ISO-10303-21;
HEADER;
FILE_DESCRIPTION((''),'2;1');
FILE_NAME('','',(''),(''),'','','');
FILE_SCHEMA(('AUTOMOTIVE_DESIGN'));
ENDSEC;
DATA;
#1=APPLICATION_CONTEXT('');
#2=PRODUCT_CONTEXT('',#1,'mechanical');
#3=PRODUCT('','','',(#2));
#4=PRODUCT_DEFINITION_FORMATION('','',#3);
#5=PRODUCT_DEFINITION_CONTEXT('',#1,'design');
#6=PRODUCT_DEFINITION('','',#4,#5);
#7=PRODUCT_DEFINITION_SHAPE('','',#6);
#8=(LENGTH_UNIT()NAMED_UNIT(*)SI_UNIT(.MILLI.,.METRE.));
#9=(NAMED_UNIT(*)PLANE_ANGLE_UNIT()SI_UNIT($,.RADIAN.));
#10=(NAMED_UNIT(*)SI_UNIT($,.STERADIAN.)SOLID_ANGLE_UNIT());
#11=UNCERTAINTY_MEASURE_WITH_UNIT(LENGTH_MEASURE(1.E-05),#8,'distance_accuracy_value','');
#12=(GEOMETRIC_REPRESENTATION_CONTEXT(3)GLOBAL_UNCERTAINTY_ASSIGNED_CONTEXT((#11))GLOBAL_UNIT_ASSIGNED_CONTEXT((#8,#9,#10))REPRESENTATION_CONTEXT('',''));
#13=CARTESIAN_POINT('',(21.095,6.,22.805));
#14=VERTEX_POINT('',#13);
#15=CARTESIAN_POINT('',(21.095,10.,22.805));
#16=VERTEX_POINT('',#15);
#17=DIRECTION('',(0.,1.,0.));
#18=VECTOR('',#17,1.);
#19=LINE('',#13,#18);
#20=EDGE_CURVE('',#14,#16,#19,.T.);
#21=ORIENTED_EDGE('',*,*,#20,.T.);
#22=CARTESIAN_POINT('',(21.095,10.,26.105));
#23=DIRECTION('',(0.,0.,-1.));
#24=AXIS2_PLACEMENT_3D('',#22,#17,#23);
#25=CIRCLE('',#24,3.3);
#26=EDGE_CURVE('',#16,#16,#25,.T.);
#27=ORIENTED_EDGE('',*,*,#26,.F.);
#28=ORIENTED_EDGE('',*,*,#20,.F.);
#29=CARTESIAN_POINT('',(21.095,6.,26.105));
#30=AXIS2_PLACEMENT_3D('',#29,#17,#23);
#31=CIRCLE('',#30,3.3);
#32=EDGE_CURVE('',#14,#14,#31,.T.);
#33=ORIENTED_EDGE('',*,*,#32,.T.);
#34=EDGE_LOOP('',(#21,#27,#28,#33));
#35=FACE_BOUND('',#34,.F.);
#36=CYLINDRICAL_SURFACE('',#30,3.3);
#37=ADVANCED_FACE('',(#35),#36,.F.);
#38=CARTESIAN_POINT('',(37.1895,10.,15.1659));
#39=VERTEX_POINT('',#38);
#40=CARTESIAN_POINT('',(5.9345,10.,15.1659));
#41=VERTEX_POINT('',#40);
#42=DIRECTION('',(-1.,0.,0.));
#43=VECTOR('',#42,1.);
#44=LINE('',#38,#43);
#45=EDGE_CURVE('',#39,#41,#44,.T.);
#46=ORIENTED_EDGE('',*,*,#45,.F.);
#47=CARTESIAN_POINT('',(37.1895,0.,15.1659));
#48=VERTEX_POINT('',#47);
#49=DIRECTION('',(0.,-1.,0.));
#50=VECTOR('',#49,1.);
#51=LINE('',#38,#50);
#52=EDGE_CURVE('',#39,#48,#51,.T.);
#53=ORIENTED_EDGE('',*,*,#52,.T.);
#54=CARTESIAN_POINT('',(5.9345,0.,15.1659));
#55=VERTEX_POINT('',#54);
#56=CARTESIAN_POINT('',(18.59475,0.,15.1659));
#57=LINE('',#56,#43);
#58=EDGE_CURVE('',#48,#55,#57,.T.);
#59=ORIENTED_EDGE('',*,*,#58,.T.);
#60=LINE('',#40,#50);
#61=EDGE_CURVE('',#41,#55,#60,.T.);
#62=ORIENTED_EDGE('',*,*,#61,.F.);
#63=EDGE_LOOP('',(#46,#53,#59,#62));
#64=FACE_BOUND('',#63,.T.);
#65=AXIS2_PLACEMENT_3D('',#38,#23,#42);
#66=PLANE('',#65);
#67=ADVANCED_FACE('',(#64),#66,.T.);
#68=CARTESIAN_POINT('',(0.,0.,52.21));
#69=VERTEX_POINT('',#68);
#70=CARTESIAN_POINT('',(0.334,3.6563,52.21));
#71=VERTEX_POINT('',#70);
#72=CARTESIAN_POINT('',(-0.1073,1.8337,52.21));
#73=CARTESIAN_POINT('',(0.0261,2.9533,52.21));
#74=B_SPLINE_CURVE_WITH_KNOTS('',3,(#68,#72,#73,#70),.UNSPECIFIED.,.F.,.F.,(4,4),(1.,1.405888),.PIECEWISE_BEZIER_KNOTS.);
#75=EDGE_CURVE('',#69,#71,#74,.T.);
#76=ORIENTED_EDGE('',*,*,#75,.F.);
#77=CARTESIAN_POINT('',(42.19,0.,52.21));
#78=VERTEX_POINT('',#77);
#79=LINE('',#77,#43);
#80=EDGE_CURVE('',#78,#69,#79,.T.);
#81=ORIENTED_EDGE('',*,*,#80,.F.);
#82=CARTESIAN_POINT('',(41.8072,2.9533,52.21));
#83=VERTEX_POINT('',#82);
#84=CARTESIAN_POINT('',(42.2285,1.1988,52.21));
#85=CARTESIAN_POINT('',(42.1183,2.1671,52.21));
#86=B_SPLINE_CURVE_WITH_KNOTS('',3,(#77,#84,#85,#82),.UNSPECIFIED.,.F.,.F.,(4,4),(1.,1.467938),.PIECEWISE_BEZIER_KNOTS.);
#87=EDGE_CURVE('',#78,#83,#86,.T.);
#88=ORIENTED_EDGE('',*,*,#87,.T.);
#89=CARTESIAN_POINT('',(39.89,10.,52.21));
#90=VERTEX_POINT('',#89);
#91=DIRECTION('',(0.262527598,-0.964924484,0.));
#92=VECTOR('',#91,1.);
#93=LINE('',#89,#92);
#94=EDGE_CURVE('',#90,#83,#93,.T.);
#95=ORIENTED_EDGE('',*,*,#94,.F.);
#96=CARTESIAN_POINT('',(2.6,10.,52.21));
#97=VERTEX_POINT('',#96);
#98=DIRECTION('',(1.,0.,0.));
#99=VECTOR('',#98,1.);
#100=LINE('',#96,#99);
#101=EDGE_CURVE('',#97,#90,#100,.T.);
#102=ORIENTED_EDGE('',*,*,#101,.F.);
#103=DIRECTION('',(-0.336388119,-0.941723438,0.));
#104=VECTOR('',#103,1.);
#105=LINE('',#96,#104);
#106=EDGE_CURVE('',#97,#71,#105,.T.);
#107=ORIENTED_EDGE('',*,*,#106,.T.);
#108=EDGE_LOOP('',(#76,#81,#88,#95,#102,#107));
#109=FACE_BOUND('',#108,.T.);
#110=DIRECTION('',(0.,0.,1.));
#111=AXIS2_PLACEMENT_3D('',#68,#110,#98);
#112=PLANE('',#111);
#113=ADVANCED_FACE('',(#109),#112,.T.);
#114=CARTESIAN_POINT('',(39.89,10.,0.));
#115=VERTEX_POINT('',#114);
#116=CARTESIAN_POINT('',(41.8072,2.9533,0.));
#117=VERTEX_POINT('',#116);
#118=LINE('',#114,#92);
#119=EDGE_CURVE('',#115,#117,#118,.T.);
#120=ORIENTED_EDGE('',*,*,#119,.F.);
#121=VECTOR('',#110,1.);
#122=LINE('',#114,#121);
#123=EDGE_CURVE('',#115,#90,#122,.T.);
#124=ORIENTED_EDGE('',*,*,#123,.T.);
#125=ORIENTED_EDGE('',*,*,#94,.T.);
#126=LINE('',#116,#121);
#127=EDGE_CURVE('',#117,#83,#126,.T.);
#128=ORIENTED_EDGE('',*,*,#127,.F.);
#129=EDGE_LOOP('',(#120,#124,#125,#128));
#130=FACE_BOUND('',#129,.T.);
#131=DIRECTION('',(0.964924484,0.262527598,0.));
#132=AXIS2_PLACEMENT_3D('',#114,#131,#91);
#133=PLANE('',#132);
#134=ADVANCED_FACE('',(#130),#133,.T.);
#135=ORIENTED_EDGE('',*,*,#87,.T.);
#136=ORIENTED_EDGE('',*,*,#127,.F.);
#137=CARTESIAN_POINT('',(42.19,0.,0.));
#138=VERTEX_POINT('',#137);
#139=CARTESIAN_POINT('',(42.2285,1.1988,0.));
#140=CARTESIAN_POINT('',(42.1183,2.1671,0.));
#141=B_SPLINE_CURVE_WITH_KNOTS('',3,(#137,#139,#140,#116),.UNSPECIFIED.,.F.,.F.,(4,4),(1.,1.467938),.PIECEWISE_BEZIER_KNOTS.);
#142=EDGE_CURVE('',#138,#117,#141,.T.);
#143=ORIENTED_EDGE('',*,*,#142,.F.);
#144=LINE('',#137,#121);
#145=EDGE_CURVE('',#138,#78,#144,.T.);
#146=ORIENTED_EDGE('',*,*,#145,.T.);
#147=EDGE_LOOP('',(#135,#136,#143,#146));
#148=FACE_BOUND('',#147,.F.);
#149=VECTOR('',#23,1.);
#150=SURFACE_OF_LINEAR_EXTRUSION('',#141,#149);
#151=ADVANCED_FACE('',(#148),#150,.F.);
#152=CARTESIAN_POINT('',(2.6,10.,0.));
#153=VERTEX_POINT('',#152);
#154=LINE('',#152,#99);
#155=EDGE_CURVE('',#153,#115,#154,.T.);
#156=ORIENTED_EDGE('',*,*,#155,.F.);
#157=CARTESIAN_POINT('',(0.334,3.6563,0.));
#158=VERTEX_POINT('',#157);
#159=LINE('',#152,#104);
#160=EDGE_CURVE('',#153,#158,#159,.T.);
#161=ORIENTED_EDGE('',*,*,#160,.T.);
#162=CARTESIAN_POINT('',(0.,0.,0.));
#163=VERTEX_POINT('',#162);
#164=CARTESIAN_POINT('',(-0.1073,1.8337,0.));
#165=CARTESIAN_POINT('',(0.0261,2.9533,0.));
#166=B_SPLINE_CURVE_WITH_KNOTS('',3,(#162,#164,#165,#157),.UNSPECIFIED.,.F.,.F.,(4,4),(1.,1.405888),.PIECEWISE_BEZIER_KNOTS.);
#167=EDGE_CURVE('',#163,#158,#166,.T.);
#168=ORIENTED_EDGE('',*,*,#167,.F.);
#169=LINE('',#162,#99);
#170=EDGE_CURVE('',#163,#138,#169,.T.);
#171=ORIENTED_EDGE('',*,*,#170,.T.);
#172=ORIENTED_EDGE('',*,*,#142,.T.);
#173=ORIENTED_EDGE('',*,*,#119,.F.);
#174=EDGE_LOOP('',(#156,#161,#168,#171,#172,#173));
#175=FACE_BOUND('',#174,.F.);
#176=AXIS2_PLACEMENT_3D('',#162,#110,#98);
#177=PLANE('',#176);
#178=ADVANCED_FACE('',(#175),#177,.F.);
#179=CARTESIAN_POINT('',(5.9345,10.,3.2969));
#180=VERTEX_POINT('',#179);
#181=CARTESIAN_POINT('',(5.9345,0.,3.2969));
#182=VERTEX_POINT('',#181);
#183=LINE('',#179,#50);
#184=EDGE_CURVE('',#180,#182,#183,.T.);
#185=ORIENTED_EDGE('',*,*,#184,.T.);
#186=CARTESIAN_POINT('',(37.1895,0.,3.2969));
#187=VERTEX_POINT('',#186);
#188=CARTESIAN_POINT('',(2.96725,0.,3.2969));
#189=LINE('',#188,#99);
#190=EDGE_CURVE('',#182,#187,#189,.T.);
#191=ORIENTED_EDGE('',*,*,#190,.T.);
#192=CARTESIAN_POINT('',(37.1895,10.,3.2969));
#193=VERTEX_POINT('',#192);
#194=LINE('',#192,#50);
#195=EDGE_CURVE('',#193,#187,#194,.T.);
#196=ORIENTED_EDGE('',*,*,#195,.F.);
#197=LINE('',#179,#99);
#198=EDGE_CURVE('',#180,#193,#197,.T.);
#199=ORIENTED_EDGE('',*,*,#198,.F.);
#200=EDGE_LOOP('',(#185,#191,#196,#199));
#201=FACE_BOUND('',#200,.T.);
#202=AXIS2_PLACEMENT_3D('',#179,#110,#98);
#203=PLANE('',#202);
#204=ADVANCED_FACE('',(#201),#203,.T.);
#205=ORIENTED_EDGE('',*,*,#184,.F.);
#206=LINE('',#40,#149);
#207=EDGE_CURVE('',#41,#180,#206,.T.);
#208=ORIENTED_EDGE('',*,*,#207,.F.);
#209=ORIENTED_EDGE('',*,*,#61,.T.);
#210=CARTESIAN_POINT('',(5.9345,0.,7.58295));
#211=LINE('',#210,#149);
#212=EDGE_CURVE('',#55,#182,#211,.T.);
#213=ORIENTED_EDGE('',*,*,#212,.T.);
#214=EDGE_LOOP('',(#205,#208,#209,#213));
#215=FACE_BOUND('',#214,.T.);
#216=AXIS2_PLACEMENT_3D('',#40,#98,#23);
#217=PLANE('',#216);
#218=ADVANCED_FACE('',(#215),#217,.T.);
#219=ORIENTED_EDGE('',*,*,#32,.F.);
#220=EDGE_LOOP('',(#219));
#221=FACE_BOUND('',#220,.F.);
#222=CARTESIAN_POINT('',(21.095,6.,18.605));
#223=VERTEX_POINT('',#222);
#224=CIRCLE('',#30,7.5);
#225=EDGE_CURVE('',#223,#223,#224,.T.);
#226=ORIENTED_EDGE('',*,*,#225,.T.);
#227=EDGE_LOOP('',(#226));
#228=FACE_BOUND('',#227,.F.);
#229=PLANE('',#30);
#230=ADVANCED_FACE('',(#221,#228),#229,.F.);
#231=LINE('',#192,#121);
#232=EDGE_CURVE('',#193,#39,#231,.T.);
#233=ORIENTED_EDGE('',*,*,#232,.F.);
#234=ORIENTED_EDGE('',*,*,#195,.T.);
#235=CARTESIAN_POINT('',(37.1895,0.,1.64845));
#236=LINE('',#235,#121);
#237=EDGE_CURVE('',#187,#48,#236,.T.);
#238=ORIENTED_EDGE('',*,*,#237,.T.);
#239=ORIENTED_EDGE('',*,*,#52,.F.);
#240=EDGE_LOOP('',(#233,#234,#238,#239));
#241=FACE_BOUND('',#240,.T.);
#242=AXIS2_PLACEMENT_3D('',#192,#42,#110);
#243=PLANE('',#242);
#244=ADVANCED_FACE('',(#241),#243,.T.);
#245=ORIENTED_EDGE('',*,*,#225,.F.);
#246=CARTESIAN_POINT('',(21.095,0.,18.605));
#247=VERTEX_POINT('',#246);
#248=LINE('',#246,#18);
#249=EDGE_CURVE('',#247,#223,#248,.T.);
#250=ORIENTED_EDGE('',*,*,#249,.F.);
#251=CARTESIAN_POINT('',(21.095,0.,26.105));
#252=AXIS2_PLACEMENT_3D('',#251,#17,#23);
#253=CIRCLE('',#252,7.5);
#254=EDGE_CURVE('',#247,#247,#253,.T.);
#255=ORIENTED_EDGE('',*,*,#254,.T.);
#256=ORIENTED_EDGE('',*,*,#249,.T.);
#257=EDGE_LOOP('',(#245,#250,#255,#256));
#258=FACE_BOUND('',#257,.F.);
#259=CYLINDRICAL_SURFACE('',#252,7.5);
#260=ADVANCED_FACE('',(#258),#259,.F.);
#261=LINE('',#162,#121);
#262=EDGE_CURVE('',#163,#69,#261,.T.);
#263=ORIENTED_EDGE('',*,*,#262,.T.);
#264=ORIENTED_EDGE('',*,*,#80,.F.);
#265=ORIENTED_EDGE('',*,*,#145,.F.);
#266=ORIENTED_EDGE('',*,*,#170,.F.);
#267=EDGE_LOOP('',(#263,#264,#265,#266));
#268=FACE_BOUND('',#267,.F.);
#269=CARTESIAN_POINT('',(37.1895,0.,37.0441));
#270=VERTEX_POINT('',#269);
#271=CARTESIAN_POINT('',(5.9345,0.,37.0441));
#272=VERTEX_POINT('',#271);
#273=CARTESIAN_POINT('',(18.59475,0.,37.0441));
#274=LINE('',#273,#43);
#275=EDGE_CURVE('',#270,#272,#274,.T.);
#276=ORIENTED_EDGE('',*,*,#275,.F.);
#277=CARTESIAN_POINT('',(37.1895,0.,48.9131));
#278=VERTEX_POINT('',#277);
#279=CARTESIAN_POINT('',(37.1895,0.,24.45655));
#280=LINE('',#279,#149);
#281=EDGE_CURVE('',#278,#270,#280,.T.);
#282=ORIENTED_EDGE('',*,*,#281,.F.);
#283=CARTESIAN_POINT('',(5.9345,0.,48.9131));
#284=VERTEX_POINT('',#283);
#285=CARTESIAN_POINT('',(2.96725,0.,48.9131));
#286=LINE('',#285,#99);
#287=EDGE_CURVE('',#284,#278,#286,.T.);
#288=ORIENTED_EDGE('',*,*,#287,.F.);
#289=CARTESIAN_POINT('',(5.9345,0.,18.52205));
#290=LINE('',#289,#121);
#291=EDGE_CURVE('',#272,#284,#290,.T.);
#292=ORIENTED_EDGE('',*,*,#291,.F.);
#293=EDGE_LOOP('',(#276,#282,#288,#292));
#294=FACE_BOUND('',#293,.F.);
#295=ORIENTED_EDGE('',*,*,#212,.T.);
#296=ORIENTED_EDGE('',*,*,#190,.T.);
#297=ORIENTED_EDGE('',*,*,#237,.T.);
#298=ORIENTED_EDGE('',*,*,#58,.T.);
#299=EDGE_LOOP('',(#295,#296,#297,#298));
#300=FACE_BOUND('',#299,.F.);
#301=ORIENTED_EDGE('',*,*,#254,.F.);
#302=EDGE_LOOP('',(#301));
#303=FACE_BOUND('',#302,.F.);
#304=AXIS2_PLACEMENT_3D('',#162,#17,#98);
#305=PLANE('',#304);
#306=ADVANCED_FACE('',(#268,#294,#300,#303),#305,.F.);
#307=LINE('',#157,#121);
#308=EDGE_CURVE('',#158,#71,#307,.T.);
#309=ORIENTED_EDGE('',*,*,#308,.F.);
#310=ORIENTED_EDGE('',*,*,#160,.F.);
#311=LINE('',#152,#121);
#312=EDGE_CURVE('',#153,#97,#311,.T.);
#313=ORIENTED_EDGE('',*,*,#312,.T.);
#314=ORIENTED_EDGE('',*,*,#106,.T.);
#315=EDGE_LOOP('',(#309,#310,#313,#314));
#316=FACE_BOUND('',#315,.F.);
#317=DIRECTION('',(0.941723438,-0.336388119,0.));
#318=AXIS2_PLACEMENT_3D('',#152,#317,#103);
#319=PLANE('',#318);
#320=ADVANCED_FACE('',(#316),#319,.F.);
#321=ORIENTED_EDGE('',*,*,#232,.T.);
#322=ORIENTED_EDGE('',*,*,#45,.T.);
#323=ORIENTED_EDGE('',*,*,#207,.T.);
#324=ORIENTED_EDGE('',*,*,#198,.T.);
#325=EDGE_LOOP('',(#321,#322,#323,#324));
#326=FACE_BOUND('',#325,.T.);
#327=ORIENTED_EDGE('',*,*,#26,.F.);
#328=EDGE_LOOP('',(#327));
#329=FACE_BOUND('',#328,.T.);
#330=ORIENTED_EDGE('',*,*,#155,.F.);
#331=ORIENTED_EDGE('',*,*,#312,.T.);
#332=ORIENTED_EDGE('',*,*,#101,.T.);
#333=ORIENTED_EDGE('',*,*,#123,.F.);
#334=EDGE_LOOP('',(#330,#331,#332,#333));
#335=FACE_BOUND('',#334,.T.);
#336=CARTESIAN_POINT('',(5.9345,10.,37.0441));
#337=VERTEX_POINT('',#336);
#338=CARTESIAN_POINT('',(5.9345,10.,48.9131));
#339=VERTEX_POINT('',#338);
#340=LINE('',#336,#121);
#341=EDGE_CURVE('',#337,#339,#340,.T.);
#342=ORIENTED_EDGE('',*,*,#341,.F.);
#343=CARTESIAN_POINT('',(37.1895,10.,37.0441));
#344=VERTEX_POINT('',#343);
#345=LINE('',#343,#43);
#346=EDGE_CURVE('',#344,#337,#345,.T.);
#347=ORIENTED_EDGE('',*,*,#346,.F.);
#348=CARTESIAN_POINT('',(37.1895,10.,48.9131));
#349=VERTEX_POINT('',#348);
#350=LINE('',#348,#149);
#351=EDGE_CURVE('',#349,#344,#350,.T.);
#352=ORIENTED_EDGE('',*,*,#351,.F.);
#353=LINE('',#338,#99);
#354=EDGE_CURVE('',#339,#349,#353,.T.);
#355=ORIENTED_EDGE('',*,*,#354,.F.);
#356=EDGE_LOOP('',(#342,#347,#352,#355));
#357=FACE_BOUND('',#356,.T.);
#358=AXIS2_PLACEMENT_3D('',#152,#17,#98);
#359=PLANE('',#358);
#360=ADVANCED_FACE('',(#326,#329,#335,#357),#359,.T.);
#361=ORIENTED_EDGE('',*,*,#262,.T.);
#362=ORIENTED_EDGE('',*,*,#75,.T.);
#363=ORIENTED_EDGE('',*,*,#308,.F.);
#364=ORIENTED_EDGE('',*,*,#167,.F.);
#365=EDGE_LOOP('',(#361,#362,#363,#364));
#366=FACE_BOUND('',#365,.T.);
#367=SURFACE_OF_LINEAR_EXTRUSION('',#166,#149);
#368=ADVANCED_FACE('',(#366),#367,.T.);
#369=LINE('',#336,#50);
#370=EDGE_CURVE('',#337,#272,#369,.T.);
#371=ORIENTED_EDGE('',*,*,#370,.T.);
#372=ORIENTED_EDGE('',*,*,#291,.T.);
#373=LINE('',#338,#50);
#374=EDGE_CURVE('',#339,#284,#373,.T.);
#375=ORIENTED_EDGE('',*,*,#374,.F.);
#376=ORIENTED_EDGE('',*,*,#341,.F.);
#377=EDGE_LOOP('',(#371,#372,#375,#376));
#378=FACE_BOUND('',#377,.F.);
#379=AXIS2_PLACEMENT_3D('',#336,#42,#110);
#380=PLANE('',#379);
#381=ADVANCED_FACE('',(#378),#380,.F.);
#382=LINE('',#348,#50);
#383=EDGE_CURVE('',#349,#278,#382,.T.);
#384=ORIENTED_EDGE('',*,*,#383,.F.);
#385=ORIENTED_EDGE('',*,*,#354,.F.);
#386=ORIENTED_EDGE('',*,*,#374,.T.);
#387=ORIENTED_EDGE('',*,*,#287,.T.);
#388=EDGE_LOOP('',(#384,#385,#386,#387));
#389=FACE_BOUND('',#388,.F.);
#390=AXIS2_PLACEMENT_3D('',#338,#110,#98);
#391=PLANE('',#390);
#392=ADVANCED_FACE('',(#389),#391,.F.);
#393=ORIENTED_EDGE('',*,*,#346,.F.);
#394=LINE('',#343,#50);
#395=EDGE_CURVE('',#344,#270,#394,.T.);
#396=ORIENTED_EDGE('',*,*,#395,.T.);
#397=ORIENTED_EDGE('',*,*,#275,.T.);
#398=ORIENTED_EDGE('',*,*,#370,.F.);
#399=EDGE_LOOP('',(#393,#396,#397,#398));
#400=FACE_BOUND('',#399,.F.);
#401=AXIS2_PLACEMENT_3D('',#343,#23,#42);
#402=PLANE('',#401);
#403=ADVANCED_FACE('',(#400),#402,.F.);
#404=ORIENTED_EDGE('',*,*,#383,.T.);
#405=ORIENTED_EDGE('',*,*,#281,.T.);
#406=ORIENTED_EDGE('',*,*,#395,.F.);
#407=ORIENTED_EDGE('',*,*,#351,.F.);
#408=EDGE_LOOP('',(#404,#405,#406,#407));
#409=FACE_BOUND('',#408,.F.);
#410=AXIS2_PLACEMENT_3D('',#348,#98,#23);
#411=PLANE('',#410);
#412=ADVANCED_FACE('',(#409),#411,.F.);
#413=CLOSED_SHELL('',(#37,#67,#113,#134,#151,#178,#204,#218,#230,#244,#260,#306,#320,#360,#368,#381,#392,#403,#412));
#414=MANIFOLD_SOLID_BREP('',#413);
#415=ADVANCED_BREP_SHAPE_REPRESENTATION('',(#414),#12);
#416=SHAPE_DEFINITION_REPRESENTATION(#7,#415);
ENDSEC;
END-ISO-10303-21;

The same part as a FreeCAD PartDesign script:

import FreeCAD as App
import Part
import Sketcher

V = App.Vector

doc = App.newDocument("Part")
params = doc.addObject("Spreadsheet::Sheet", "Params")
for row, (alias, value) in enumerate([
    ("pad1_length", "52.21 mm"),
    ("sketch2_diameter", "6.6 mm"),
    ("hole_diameter", "6.6 mm"),
    ("hole_depth", "10 mm"),
    ("hole_cbore_diameter", "15 mm"),
    ("hole_cbore_depth", "6 mm"),
], start=1):
    params.set(f"A{row}", alias)
    params.set(f"B{row}", "=" + value)
    params.setAlias(f"B{row}", alias)

body = doc.addObject("PartDesign::Body", "Body")

sketch1 = body.newObject("Sketcher::SketchObject", "Sketch")
sketch1.AttachmentSupport = (doc.getObject("XY_Plane"), [""])
sketch1.MapMode = "FlatFace"
sketch1.addGeometry(Part.BSplineCurve([V(0, 0, 0), V(-0.1073, 1.8337, 0), V(0.0261, 2.9533, 0), V(0.334, 3.6563, 0)], [4, 4], [1, 1.405888], False, 3, [1, 1, 1, 1], False), False)
sketch1.addGeometry(Part.LineSegment(V(0, 0, 0), V(42.19, 0, 0)), False)
sketch1.addGeometry(Part.BSplineCurve([V(42.19, 0, 0), V(42.2285, 1.1988, 0), V(42.1183, 2.1671, 0), V(41.8072, 2.9533, 0)], [4, 4], [1, 1.467938], False, 3, [1, 1, 1, 1], False), False)
sketch1.addGeometry(Part.LineSegment(V(41.8072, 2.9533, 0), V(39.89, 10, 0)), False)
sketch1.addGeometry(Part.LineSegment(V(39.89, 10, 0), V(2.6, 10, 0)), False)
sketch1.addGeometry(Part.LineSegment(V(2.6, 10, 0), V(0.334, 3.6563, 0)), False)
sketch1.addConstraint(Sketcher.Constraint("Block", 0))
sketch1.addConstraint(Sketcher.Constraint("Block", 2))
sketch1.addConstraint(Sketcher.Constraint("Coincident", 0, 1, 1, 1))
sketch1.addConstraint(Sketcher.Constraint("Coincident", 1, 2, 2, 1))
sketch1.addConstraint(Sketcher.Constraint("Coincident", 2, 2, 3, 1))
sketch1.addConstraint(Sketcher.Constraint("Coincident", 3, 2, 4, 1))
sketch1.addConstraint(Sketcher.Constraint("Coincident", 4, 2, 5, 1))
sketch1.addConstraint(Sketcher.Constraint("Coincident", 5, 2, 0, 2))
sketch1.addConstraint(Sketcher.Constraint("Horizontal", 4))
sketch1.addConstraint(Sketcher.Constraint("DistanceY", -1, 1, 3, 2, 10.0))
sketch1.addConstraint(Sketcher.Constraint("DistanceX", -1, 1, 4, 2, 2.6))
sketch1.addConstraint(Sketcher.Constraint("DistanceX", 3, 2, 1, 2, 2.3))
pad1 = body.newObject("PartDesign::Pad", "Pad")
pad1.Profile = sketch1
pad1.setExpression("Length", "Params.pad1_length")

sketch2 = body.newObject("Sketcher::SketchObject", "Sketch001")
sketch2.AttachmentSupport = (doc.getObject("XZ_Plane"), [""])
sketch2.MapMode = "FlatFace"
sketch2.addGeometry(Part.Circle(V(21.1, 26.1, 0), V(0, 0, 1), 3.3), False)
sketch2.addConstraint(Sketcher.Constraint("Diameter", 0, 6.6))
sketch2.addConstraint(Sketcher.Constraint("DistanceX", -1, 1, 0, 3, 21.095))
sketch2.addConstraint(Sketcher.Constraint("DistanceY", -1, 1, 0, 3, 26.105))
sketch2.setExpression("Constraints[0]", "Params.sketch2_diameter")
doc.recompute()
hole = body.newObject("PartDesign::Hole", "Hole")
hole.Profile = sketch2
hole.ThreadType = "None"
hole.setExpression("Diameter", "Params.hole_diameter")
hole.DepthType = "Dimension"
hole.setExpression("Depth", "Params.hole_depth")
hole.DrillPoint = "Flat"
hole.HoleCutType = "Counterbore"
hole.setExpression("HoleCutDiameter", "Params.hole_cbore_diameter")
hole.setExpression("HoleCutDepth", "Params.hole_cbore_depth")

sketch3 = body.newObject("Sketcher::SketchObject", "Sketch002")
sketch3.AttachmentSupport = (doc.getObject("XZ_Plane"), [""])
sketch3.MapMode = "FlatFace"
sketch3.AttachmentOffset = App.Placement(V(0, 0, -10), App.Rotation())
sketch3.addGeometry(Part.LineSegment(V(37, 3, 0), V(6, 3, 0)), False)
sketch3.addGeometry(Part.LineSegment(V(6, 3, 0), V(6, 15, 0)), False)
sketch3.addGeometry(Part.LineSegment(V(6, 15, 0), V(37, 15, 0)), False)
sketch3.addGeometry(Part.LineSegment(V(37, 15, 0), V(37, 3, 0)), False)
sketch3.addGeometry(Part.LineSegment(V(6, 37, 0), V(6, 49, 0)), False)
sketch3.addGeometry(Part.LineSegment(V(6, 49, 0), V(37, 49, 0)), False)
sketch3.addGeometry(Part.LineSegment(V(37, 49, 0), V(37, 37, 0)), False)
sketch3.addGeometry(Part.LineSegment(V(37, 37, 0), V(6, 37, 0)), False)
sketch3.addConstraint(Sketcher.Constraint("Coincident", 0, 2, 1, 1))
sketch3.addConstraint(Sketcher.Constraint("Coincident", 1, 2, 2, 1))
sketch3.addConstraint(Sketcher.Constraint("Coincident", 2, 2, 3, 1))
sketch3.addConstraint(Sketcher.Constraint("Coincident", 3, 2, 0, 1))
sketch3.addConstraint(Sketcher.Constraint("Coincident", 4, 2, 5, 1))
sketch3.addConstraint(Sketcher.Constraint("Coincident", 5, 2, 6, 1))
sketch3.addConstraint(Sketcher.Constraint("Coincident", 6, 2, 7, 1))
sketch3.addConstraint(Sketcher.Constraint("Coincident", 7, 2, 4, 1))
sketch3.addConstraint(Sketcher.Constraint("Horizontal", 0))
sketch3.addConstraint(Sketcher.Constraint("Vertical", 1))
sketch3.addConstraint(Sketcher.Constraint("Horizontal", 2))
sketch3.addConstraint(Sketcher.Constraint("Vertical", 3))
sketch3.addConstraint(Sketcher.Constraint("Vertical", 4))
sketch3.addConstraint(Sketcher.Constraint("Horizontal", 5))
sketch3.addConstraint(Sketcher.Constraint("Vertical", 6))
sketch3.addConstraint(Sketcher.Constraint("Horizontal", 7))
sketch3.addConstraint(Sketcher.Constraint("Vertical", 1, 2, 4, 2))
sketch3.addConstraint(Sketcher.Constraint("Vertical", 3, 2, 5, 2))
sketch3.addConstraint(Sketcher.Constraint("Equal", 3, 4))
sketch3.addConstraint(Sketcher.Constraint("DistanceX", 0, 2, 0, 1, 31.255))
sketch3.addConstraint(Sketcher.Constraint("DistanceY", 1, 1, 1, 2, 11.869))
sketch3.addConstraint(Sketcher.Constraint("DistanceY", -1, 1, 0, 2, 3.297))
sketch3.addConstraint(Sketcher.Constraint("DistanceY", -1, 1, 4, 2, 48.913))
sketch3.addConstraint(Sketcher.Constraint("DistanceX", -1, 1, 0, 2, 5.9345))
pocket1 = body.newObject("PartDesign::Pocket", "Pocket")
pocket1.Profile = sketch3
pocket1.Type = "ThroughAll"
pocket1.Reversed = True

doc.recompute()
